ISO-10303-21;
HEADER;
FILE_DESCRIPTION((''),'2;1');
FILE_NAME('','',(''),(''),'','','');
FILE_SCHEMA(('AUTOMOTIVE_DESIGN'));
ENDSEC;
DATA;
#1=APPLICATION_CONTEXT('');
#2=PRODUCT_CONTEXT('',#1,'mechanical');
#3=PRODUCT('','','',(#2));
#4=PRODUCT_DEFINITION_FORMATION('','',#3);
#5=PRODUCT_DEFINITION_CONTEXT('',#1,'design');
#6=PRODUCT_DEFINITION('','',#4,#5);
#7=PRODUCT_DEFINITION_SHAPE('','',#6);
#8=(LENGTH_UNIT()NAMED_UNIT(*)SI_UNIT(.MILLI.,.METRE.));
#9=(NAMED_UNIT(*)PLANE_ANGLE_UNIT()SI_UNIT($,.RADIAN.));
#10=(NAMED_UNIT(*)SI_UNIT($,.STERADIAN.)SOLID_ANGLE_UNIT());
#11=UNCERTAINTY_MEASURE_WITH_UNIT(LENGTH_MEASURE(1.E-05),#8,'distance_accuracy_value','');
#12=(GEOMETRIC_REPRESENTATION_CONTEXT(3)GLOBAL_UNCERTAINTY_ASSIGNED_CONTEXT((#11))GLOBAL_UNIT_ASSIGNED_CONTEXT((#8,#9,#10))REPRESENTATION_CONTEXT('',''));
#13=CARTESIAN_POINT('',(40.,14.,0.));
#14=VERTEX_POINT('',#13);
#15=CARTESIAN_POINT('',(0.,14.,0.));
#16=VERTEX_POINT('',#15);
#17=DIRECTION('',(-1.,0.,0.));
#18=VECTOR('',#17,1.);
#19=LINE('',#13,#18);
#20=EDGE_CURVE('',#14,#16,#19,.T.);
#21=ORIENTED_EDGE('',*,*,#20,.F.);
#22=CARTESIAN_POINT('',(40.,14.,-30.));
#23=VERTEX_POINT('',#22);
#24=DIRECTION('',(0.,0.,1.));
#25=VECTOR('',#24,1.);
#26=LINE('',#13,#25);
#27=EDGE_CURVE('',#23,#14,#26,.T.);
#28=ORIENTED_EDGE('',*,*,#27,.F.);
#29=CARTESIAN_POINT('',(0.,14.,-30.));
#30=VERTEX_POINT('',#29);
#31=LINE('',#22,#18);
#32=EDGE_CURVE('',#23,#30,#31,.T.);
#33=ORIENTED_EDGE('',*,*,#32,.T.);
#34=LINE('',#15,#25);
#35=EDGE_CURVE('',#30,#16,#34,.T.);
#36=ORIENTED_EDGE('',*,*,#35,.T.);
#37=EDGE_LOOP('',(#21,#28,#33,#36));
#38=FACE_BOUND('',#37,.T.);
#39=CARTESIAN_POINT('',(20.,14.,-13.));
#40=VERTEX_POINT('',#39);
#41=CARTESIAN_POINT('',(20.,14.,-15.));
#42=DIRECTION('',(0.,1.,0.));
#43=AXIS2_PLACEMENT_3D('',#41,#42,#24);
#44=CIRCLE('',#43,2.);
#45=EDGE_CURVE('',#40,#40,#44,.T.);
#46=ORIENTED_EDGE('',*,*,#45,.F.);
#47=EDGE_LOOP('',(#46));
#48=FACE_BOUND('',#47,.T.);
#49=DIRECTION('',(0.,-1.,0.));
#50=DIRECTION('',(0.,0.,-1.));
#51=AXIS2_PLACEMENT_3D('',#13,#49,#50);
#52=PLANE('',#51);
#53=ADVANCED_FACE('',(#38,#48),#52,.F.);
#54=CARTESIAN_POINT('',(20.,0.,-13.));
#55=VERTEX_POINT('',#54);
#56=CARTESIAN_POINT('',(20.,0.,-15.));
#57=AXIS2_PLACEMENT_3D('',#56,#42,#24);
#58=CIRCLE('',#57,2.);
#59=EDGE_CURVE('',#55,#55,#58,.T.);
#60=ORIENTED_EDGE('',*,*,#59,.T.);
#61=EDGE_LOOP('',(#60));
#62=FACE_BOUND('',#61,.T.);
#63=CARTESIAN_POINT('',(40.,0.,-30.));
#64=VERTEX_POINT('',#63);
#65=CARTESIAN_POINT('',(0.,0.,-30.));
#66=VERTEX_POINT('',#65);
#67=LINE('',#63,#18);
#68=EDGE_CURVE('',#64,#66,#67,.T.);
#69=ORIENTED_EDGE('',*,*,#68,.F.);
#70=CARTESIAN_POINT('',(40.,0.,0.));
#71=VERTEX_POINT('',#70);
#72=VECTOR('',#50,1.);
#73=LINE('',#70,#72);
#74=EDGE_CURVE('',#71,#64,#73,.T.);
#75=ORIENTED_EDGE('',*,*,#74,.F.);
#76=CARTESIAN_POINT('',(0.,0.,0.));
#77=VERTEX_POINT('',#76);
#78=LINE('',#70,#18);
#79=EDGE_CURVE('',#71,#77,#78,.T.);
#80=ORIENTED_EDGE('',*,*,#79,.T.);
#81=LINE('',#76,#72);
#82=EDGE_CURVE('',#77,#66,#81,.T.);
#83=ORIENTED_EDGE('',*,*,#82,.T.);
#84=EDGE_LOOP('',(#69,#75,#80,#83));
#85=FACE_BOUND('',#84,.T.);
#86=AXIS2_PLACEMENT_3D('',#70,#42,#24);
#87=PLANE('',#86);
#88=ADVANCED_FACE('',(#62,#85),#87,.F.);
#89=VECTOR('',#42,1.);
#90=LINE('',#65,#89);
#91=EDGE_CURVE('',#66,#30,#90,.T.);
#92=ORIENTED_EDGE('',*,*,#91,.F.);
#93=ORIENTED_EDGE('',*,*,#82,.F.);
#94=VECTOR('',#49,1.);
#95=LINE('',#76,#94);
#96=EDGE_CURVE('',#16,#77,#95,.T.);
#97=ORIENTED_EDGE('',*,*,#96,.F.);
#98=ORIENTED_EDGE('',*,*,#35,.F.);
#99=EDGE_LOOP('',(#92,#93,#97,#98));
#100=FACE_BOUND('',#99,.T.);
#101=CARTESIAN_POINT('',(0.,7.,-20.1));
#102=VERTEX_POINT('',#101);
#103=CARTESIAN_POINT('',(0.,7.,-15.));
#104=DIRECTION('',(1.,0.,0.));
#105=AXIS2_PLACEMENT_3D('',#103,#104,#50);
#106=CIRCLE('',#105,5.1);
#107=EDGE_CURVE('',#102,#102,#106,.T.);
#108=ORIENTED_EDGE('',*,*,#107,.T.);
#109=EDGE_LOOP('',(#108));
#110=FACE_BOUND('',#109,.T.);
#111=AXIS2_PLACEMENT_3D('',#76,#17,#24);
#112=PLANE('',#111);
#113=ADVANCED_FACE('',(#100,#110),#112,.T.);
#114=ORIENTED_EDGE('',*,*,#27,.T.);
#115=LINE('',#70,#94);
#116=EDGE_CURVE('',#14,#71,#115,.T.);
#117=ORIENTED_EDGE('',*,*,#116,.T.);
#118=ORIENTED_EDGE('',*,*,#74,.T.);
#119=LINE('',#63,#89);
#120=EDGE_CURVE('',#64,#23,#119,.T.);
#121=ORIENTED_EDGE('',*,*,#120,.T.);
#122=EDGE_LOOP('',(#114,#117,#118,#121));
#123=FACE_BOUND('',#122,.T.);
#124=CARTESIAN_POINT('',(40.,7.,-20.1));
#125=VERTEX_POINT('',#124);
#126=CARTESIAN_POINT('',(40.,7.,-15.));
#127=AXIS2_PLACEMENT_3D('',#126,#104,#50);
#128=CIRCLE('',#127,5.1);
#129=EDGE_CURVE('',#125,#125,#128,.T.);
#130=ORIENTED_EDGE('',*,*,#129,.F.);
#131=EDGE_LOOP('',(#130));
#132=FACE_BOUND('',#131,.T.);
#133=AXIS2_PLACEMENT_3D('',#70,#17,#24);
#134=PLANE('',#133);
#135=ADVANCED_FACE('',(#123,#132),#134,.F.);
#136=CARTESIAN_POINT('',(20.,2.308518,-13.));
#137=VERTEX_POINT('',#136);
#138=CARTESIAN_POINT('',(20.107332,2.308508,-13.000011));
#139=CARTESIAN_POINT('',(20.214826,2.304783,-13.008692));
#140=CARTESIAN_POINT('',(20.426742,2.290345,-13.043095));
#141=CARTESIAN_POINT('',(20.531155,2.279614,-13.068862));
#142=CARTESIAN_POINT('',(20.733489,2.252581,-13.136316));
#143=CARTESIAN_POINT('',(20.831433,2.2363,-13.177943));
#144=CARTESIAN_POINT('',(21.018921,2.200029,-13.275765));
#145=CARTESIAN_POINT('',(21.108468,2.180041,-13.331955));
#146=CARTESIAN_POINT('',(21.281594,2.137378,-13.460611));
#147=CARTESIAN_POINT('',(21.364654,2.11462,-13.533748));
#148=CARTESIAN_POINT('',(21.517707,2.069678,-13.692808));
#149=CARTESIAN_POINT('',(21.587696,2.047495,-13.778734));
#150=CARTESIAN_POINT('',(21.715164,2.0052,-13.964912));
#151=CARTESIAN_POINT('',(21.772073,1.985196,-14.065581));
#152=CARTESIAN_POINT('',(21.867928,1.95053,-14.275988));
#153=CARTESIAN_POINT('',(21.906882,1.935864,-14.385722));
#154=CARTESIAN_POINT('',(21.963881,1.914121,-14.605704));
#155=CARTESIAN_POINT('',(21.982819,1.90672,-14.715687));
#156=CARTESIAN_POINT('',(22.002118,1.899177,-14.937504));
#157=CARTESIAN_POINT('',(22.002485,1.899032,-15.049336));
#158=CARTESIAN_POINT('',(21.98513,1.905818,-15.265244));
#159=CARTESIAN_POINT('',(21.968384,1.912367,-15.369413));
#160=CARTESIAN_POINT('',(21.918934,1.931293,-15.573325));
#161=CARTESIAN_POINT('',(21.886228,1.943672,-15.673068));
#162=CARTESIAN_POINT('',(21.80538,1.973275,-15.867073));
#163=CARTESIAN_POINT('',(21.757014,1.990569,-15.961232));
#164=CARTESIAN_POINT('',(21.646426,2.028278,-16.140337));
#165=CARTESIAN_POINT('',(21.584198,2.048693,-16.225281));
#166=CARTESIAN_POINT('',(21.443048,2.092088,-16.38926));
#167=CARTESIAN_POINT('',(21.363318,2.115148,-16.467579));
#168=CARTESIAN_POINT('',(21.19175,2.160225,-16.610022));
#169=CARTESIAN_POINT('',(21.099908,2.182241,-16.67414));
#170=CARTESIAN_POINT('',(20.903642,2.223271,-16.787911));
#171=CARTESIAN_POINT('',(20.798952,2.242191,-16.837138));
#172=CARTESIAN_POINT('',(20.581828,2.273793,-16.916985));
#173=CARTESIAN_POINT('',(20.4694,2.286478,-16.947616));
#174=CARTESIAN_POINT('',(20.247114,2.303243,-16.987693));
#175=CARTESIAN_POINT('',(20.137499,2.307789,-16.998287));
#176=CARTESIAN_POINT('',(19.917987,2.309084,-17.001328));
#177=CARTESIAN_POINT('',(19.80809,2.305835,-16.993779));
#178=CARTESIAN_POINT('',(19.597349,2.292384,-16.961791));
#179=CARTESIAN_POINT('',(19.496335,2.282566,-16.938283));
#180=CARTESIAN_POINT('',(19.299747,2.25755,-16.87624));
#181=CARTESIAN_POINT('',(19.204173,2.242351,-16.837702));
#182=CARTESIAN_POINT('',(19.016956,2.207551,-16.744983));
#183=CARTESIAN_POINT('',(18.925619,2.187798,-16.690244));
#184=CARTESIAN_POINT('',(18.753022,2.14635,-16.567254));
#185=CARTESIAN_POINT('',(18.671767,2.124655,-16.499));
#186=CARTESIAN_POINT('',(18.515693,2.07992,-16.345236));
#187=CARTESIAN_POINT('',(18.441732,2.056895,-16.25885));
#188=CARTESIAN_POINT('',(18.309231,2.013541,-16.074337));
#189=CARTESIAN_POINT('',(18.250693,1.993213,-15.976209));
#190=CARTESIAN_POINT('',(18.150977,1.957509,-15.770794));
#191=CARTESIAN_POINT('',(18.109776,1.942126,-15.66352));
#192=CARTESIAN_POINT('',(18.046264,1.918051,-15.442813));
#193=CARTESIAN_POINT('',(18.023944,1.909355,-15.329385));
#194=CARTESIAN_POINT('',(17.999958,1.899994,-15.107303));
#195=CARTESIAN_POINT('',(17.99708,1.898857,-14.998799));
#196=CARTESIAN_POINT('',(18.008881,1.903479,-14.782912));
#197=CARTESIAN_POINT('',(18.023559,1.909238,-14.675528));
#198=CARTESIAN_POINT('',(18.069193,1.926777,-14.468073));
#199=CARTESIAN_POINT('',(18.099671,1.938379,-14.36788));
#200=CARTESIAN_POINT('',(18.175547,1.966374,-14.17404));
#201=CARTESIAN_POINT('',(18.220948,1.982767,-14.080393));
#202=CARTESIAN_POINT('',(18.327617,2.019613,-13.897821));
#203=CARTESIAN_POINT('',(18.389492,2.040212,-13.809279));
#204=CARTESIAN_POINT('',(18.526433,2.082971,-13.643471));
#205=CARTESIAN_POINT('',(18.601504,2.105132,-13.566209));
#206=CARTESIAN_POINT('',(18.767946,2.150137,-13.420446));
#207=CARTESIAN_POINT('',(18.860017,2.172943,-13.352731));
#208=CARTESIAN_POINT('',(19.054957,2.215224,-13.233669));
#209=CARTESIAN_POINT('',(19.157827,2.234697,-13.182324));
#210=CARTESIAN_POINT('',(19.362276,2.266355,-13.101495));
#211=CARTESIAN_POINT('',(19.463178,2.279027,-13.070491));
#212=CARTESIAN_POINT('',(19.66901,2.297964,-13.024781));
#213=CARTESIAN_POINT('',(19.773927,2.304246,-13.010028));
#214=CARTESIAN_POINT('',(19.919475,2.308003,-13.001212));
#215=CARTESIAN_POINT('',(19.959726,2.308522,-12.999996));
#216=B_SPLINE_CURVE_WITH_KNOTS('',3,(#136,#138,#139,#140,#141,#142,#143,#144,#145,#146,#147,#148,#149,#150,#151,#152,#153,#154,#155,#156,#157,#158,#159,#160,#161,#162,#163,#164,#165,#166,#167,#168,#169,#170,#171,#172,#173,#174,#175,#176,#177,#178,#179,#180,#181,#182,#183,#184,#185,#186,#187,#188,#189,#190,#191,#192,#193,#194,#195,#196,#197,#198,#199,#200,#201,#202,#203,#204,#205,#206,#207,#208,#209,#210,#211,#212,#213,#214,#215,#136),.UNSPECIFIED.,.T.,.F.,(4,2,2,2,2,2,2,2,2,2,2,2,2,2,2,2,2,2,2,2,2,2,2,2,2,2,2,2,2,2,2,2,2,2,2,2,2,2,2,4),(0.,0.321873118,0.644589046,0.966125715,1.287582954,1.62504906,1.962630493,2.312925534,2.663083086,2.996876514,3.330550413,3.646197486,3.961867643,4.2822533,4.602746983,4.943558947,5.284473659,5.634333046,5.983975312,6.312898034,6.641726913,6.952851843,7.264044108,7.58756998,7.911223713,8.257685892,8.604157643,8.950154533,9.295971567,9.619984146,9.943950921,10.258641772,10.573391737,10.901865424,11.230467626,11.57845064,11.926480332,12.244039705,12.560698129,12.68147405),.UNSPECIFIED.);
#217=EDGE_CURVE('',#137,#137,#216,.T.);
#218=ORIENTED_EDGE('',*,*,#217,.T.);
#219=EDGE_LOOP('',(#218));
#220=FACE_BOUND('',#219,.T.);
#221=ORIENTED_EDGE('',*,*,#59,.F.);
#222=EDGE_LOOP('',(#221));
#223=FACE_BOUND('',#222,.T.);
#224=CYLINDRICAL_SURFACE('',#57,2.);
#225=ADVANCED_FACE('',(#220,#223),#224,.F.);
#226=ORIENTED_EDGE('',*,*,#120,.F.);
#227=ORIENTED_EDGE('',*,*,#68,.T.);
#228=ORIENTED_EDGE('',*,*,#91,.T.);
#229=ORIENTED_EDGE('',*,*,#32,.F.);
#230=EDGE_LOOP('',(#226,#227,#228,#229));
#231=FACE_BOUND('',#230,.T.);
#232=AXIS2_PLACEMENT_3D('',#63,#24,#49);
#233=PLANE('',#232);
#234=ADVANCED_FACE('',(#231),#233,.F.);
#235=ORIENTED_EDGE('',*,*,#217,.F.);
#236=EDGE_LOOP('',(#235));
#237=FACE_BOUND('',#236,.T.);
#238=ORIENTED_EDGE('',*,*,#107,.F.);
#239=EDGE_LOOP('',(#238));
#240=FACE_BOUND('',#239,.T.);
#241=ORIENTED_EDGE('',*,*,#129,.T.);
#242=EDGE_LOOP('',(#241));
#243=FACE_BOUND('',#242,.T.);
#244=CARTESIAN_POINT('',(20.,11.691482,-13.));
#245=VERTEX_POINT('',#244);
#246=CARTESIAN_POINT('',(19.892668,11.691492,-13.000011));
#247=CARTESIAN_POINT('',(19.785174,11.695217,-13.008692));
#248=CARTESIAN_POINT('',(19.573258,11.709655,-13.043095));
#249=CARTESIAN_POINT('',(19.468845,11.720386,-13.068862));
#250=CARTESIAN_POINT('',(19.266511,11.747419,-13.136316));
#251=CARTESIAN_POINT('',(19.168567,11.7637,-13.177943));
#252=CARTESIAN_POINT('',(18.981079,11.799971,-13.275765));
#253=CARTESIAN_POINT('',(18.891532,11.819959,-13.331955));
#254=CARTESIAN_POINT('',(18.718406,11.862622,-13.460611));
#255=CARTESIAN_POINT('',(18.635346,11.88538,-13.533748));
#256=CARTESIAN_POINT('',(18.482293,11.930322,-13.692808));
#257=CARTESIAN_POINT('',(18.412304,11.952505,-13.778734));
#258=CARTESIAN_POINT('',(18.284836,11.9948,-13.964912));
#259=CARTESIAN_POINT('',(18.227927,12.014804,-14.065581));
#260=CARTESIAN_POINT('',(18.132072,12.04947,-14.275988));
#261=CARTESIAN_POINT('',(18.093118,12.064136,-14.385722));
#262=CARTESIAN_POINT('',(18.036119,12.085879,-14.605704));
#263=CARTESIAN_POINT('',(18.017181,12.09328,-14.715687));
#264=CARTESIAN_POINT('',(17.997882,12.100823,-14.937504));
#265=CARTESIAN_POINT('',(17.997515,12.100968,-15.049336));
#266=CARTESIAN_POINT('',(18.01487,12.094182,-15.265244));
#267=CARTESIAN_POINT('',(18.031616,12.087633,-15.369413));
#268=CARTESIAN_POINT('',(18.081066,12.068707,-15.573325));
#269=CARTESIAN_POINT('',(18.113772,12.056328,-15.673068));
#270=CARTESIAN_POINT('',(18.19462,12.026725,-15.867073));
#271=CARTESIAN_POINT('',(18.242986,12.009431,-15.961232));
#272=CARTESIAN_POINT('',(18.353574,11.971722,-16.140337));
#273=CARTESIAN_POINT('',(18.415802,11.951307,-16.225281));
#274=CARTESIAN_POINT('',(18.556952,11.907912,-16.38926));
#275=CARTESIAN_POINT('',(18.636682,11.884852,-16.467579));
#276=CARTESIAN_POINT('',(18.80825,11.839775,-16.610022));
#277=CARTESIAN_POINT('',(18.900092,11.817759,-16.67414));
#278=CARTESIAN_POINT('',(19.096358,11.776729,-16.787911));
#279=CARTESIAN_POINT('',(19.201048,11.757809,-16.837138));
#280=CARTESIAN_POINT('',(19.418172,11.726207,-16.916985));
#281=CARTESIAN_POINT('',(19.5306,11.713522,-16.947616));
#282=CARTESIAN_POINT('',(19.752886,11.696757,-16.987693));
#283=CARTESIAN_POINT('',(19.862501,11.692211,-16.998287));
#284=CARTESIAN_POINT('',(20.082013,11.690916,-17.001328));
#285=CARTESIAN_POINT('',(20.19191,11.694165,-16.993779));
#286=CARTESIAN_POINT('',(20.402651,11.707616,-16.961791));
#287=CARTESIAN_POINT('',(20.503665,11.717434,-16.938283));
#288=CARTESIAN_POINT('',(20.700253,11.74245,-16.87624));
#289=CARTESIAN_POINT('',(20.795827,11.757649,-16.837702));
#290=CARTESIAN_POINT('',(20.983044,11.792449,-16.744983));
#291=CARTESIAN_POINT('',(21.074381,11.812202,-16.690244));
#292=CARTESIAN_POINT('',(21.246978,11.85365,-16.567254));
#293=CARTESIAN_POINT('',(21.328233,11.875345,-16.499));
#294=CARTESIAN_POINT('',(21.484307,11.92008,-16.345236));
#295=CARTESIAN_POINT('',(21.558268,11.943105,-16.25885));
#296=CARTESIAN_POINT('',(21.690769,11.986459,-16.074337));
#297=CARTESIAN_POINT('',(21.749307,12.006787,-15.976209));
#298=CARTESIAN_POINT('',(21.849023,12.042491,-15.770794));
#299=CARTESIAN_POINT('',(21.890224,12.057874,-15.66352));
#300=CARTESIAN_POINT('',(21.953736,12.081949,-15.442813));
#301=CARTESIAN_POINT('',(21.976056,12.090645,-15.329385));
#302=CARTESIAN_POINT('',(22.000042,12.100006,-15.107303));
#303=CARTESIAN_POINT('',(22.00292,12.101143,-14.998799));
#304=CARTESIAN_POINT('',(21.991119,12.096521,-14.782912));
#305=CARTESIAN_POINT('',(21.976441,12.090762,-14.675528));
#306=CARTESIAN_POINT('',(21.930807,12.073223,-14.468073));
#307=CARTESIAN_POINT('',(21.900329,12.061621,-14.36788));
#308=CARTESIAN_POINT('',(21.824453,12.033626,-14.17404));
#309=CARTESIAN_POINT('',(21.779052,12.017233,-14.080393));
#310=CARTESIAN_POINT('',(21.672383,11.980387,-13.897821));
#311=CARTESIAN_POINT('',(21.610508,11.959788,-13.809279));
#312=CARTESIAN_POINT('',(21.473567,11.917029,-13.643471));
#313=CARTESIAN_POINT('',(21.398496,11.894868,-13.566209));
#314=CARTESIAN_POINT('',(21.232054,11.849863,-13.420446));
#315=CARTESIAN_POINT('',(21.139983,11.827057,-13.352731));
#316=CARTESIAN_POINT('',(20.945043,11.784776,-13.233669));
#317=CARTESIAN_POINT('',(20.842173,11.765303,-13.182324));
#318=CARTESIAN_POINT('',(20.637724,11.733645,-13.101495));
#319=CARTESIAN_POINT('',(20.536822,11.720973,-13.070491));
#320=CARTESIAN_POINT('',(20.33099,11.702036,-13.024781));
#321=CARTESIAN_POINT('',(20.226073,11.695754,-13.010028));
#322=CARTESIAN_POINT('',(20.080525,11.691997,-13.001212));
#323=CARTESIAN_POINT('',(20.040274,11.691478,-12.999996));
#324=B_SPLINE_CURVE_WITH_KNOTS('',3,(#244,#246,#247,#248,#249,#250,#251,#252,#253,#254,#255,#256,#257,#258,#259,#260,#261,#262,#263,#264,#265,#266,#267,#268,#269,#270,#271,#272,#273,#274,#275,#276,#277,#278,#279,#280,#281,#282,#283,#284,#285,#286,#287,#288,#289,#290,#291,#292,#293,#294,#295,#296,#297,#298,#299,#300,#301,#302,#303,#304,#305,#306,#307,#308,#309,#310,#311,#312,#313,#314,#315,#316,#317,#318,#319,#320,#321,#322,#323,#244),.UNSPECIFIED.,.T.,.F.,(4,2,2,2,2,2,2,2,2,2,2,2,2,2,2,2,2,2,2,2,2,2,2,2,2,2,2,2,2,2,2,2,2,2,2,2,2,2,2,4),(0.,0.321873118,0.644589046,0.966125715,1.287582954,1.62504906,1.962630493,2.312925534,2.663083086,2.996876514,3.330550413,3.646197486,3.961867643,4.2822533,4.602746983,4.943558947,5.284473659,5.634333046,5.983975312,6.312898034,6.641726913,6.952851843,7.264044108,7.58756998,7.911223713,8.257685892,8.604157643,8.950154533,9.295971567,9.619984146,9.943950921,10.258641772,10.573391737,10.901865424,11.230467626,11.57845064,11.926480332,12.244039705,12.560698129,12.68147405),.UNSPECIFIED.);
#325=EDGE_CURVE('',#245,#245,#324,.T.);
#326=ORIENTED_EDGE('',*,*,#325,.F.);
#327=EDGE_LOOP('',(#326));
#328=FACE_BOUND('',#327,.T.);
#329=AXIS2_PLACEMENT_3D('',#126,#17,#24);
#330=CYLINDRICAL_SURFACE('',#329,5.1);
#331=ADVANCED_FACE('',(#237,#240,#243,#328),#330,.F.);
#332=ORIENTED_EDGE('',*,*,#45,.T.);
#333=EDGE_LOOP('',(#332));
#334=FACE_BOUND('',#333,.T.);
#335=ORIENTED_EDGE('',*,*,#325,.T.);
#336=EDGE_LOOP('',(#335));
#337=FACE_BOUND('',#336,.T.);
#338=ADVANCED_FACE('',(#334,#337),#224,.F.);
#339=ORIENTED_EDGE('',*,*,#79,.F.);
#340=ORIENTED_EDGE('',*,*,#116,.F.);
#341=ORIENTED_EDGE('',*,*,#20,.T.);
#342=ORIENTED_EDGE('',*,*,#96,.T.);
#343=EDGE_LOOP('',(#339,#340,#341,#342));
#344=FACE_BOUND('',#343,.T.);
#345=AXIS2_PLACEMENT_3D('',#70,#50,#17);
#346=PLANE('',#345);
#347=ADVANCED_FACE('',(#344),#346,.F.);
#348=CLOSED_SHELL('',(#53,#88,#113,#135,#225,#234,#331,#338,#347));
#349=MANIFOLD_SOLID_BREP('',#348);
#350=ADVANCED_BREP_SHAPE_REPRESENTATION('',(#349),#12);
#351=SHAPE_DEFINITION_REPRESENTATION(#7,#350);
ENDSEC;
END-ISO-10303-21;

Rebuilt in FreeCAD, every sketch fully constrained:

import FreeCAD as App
import Part
import Sketcher

V = App.Vector
Q = App.Units.Quantity


def add_polygon(sketch, points):
    """Adds a closed chain of lines whose ends are joined by coincident constraints."""
    first, n = sketch.GeometryCount, len(points)
    for a, b in zip(points, points[1:] + points[:1]):
        sketch.addGeometry(Part.LineSegment(App.Vector(*a, 0), App.Vector(*b, 0)), False)
    for i in range(n):
        sketch.addConstraint(Sketcher.Constraint("Coincident", first + i, 2, first + (i + 1) % n, 1))

doc = App.newDocument("Part")
body = doc.addObject("PartDesign::Body", "Body")

sketch1 = doc.addObject("Sketcher::SketchObject", "Sketch")
body.addObject(sketch1)
sketch1.AttachmentSupport = (doc.YZ_Plane, [""])
sketch1.MapMode = "FlatFace"
add_polygon(sketch1, [(14, 0), (0, 0), (0, -30), (14, -30)])
sketch1.addGeometry(Part.Circle(V(7, -15, 0), V(0, 0, 1), 5), False)
sketch1.addConstraint([
    Sketcher.Constraint("Horizontal", 0),
    Sketcher.Constraint("Vertical", 1),
    Sketcher.Constraint("Horizontal", 2),
    Sketcher.Constraint("Vertical", 3),
    Sketcher.Constraint("Coincident", 0, 2, -1, 1),
    Sketcher.Constraint("Diameter", 4, Q("10.2 mm")),
    Sketcher.Constraint("DistanceX", 0, 2, 0, 1, Q("14 mm")),
    Sketcher.Constraint("DistanceY", 1, 2, 1, 1, Q("30 mm")),
    Sketcher.Constraint("DistanceX", -1, 1, 4, 3, Q("7 mm")),
    Sketcher.Constraint("DistanceY", 4, 3, -1, 1, Q("15 mm")),
])
pad1 = doc.addObject("PartDesign::Pad", "Pad")
body.addObject(pad1)
pad1.Profile = sketch1
pad1.Length = 40

sketch2 = doc.addObject("Sketcher::SketchObject", "Sketch001")
body.addObject(sketch2)
sketch2.AttachmentSupport = (doc.XZ_Plane, [""])
sketch2.MapMode = "FlatFace"
sketch2.AttachmentOffset = App.Placement(V(0, 0, -14), App.Rotation())
sketch2.addGeometry(Part.Circle(V(20, -15, 0), V(0, 0, 1), 2), False)
sketch2.addConstraint([
    Sketcher.Constraint("Diameter", 0, Q("4 mm")),
    Sketcher.Constraint("DistanceX", -1, 1, 0, 3, Q("20 mm")),
    Sketcher.Constraint("DistanceY", 0, 3, -1, 1, Q("15 mm")),
])
pocket1 = doc.addObject("PartDesign::Pocket", "Pocket")
body.addObject(pocket1)
pocket1.Profile = sketch2
pocket1.Type = "ThroughAll"
pocket1.Reversed = True

doc.recompute()
